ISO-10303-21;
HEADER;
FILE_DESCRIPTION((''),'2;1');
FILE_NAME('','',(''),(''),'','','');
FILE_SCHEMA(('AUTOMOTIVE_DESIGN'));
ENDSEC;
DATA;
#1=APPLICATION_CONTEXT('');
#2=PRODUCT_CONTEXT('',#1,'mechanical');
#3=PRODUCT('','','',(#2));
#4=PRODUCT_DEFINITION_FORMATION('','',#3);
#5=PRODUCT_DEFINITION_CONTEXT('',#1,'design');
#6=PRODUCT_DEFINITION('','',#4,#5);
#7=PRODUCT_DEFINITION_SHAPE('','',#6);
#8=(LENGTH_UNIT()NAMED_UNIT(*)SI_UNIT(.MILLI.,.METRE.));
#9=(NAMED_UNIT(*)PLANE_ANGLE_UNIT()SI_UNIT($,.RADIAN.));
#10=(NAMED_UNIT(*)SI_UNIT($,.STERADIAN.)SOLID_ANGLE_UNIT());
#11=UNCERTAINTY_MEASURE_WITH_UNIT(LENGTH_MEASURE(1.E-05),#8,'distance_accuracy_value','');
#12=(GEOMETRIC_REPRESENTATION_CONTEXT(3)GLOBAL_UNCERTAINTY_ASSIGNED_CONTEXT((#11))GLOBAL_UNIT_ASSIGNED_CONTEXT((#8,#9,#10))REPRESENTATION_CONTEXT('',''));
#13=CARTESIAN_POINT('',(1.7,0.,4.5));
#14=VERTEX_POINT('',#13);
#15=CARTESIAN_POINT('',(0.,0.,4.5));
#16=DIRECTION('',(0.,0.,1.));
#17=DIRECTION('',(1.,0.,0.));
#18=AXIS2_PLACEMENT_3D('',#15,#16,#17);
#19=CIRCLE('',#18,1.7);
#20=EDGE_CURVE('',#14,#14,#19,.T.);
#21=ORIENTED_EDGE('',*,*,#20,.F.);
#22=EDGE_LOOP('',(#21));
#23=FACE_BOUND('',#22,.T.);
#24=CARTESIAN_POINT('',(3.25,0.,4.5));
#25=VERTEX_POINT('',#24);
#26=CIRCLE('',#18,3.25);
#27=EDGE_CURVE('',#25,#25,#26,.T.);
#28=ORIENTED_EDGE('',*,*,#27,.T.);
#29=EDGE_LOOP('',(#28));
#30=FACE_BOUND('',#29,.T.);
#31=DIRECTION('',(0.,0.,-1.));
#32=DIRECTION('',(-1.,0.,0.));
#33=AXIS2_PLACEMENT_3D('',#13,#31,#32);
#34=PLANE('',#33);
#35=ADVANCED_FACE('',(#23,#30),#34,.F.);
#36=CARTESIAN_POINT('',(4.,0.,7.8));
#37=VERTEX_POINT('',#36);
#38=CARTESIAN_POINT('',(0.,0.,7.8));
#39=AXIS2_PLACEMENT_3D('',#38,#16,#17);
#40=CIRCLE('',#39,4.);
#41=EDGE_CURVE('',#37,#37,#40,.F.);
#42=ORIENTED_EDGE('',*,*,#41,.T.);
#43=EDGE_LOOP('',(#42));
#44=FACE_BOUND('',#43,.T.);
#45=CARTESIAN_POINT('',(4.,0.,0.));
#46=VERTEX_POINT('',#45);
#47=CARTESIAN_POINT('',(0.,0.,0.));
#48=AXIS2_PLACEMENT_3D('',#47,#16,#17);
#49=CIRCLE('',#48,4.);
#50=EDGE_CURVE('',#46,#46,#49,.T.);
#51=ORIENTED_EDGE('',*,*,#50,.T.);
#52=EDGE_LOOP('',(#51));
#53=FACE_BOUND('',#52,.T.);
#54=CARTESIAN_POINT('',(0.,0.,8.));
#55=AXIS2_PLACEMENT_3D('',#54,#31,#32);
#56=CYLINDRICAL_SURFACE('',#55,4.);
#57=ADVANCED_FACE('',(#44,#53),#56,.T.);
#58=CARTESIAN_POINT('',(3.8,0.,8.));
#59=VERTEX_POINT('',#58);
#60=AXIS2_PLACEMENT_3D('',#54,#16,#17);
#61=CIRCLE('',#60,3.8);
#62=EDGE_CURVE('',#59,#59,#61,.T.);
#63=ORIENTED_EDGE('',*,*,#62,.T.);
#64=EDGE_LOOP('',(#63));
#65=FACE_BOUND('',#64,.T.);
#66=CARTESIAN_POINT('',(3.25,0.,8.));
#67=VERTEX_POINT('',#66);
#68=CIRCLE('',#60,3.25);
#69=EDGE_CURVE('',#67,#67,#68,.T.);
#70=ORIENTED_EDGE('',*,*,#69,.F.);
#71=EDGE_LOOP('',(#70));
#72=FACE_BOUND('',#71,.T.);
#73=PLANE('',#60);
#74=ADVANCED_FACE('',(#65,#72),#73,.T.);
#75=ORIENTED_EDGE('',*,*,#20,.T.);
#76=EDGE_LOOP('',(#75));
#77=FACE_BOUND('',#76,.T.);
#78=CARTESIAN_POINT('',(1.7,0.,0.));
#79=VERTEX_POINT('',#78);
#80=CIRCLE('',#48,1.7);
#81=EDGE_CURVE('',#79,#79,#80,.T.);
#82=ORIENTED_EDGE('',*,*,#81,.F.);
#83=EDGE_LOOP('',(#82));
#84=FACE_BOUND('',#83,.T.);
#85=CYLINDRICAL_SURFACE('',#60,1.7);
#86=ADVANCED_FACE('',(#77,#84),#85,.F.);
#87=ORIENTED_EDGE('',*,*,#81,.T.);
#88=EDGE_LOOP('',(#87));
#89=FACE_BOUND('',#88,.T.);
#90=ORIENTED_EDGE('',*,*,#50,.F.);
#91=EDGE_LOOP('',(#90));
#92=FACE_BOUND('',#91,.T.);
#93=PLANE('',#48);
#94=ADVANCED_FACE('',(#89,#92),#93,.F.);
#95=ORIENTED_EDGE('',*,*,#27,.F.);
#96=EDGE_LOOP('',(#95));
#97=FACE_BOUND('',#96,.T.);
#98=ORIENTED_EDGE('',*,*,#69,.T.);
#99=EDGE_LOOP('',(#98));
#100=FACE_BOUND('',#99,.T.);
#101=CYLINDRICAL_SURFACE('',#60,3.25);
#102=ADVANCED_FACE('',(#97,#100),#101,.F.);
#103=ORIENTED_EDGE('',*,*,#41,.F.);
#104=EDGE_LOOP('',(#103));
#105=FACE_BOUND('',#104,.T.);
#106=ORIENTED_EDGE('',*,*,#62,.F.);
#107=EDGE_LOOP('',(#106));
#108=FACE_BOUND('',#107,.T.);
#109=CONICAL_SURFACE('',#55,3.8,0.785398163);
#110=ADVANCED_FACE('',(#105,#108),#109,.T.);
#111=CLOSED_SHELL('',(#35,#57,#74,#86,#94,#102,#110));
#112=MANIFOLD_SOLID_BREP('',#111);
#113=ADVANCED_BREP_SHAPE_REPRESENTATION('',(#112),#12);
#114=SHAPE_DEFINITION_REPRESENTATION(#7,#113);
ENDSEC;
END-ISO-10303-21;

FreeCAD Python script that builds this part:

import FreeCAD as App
import Part
import Sketcher


def edges_at(feature, points):
    """Names of the edges that pass closest to the given points."""
    edges = feature.Shape.Edges
    near = lambda p: min(range(len(edges)), key=lambda i: edges[i].distToShape(Part.Vertex(*p))[0])
    return sorted({f"Edge{near(p) + 1}" for p in points})

doc = App.newDocument("Part")
body = doc.addObject("PartDesign::Body", "Body")

sketch1 = body.newObject("Sketcher::SketchObject", "Sketch")
sketch1.AttachmentSupport = (doc.getObject("XY_Plane"), [""])
sketch1.MapMode = "FlatFace"
sketch1.addGeometry(Part.Circle(App.Vector(0, 0, 0), App.Vector(0, 0, 1), 4), False)
sketch1.addConstraint([
    Sketcher.Constraint("Coincident", 0, 3, -1, 1),
    Sketcher.Constraint("Diameter", 0, 8.0),
])
pad1 = body.newObject("PartDesign::Pad", "Pad")
pad1.Profile = sketch1
pad1.Length = 8

sketch2 = body.newObject("Sketcher::SketchObject", "Sketch001")
sketch2.AttachmentSupport = (doc.getObject("XY_Plane"), [""])
sketch2.MapMode = "FlatFace"
sketch2.AttachmentOffset = App.Placement(App.Vector(0, 0, 8), App.Rotation())
sketch2.addGeometry(Part.Circle(App.Vector(0, 0, 0), App.Vector(0, 0, 1), 1.7), False)
sketch2.addConstraint([
    Sketcher.Constraint("Coincident", 0, 3, -1, 1),
    Sketcher.Constraint("Diameter", 0, 3.4),
])
doc.recompute()
hole = body.newObject("PartDesign::Hole", "Hole")
hole.Profile = sketch2
hole.ThreadType = "None"
hole.Diameter = 3.4
hole.DepthType = "ThroughAll"
hole.HoleCutType = "Counterbore"
hole.HoleCutDiameter = 6.5
hole.HoleCutDepth = 3.5
doc.recompute()

chamfer = body.newObject("PartDesign::Chamfer", "Chamfer")
chamfer.Base = (hole, edges_at(hole, [(-4, 0, 8)]))
chamfer.Size = 0.2

doc.recompute()
